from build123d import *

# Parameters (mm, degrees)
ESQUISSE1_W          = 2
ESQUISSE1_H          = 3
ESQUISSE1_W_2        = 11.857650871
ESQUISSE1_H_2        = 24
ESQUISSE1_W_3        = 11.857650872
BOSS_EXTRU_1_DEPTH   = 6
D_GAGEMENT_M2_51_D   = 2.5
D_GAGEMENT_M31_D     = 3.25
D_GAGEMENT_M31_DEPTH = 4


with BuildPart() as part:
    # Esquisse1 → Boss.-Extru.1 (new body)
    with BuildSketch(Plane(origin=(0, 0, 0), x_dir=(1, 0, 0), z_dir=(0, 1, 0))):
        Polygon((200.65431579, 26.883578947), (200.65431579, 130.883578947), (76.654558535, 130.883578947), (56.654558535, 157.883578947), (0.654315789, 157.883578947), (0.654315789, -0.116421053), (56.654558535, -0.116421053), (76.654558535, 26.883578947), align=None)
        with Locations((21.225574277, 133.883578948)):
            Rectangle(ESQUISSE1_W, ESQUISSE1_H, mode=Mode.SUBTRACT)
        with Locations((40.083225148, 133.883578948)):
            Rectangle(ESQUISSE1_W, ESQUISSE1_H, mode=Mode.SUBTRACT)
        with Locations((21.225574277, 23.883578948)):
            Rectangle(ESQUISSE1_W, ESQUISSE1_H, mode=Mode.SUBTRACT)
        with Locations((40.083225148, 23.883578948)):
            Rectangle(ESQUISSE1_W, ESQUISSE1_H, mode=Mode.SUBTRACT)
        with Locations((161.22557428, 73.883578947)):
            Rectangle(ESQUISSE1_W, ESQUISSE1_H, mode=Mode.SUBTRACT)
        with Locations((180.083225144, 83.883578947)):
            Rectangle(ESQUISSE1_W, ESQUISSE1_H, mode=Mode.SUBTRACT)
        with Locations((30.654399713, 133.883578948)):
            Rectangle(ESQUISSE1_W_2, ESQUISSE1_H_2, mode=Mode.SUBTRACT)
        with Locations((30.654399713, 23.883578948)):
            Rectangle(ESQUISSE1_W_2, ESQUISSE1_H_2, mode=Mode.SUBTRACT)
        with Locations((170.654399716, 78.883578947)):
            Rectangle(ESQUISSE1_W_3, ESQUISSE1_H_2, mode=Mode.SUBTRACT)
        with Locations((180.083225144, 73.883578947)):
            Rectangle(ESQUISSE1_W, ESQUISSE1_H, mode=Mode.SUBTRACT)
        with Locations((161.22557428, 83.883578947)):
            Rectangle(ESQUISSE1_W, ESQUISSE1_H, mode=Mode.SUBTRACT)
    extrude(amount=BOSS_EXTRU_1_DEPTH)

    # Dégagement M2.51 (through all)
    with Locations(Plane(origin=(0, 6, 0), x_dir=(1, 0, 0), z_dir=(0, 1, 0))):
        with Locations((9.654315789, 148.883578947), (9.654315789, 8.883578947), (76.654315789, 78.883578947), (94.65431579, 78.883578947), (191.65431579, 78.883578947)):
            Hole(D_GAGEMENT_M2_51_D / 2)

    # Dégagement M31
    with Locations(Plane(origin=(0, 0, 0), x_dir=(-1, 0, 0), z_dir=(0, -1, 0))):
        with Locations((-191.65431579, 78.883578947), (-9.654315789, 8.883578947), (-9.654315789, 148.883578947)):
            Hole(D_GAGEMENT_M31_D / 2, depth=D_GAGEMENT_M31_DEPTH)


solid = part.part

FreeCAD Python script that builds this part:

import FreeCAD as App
import Part
import Sketcher
from FreeCAD import Vector


def add_polygon(sketch, points):
    """Adds a closed chain of lines whose ends are joined by coincident constraints."""
    first, n = sketch.GeometryCount, len(points)
    for a, b in zip(points, points[1:] + points[:1]):
        sketch.addGeometry(Part.LineSegment(App.Vector(*a, 0), App.Vector(*b, 0)), False)
    for i in range(n):
        sketch.addConstraint(Sketcher.Constraint("Coincident", first + i, 2, first + (i + 1) % n, 1))

doc = App.newDocument("Part")
params = doc.addObject("Spreadsheet::Sheet", "Params")
for row, (alias, value) in enumerate([
    ("sketch1_width", "2 mm"),
    ("sketch1_height", "104 mm"),
    ("sketch1_height2", "158 mm"),
    ("sketch1_height3", "3 mm"),
    ("sketch1_height4", "24 mm"),
    ("pad1_length", "6 mm"),
    ("sketch2_diameter", "2.5 mm"),
    ("hole_diameter", "2.5 mm"),
    ("sketch3_diameter", "3.25 mm"),
    ("hole2_diameter", "3.25 mm"),
    ("hole2_depth", "4 mm"),
], start=1):
    params.set(f"A{row}", alias)
    params.set(f"B{row}", "=" + value)
    params.setAlias(f"B{row}", alias)

body = doc.addObject("PartDesign::Body", "Body")

sketch1 = body.newObject("Sketcher::SketchObject", "Sketch")
sketch1.AttachmentSupport = (doc.getObject("XZ_Plane"), [""])
sketch1.MapMode = "FlatFace"
add_polygon(sketch1, [(200.7, -26.9), (200.7, -130.9), (76.7, -130.9), (56.7, -157.9), (0.7, -157.9), (0.7, 0.1), (56.7, 0.1), (76.7, -26.9)])
add_polygon(sketch1, [(22.2, -22.4), (20.2, -22.4), (20.2, -25.4), (22.2, -25.4)])
add_polygon(sketch1, [(36.6, -11.9), (24.7, -11.9), (24.7, -35.9), (36.6, -35.9)])
add_polygon(sketch1, [(41.1, -22.4), (39.1, -22.4), (39.1, -25.4), (41.1, -25.4)])
add_polygon(sketch1, [(162.2, -72.4), (160.2, -72.4), (160.2, -75.4), (162.2, -75.4)])
add_polygon(sketch1, [(176.6, -66.9), (164.7, -66.9), (164.7, -90.9), (176.6, -90.9)])
add_polygon(sketch1, [(181.1, -72.4), (179.1, -72.4), (179.1, -75.4), (181.1, -75.4)])
add_polygon(sketch1, [(22.2, -132.4), (20.2, -132.4), (20.2, -135.4), (22.2, -135.4)])
add_polygon(sketch1, [(36.6, -121.9), (24.7, -121.9), (24.7, -145.9), (36.6, -145.9)])
add_polygon(sketch1, [(41.1, -132.4), (39.1, -132.4), (39.1, -135.4), (41.1, -135.4)])
add_polygon(sketch1, [(162.2, -82.4), (160.2, -82.4), (160.2, -85.4), (162.2, -85.4)])
add_polygon(sketch1, [(181.1, -82.4), (179.1, -82.4), (179.1, -85.4), (181.1, -85.4)])
sketch1.addConstraint(Sketcher.Constraint("Vertical", 0))
sketch1.addConstraint(Sketcher.Constraint("Horizontal", 1))
sketch1.addConstraint(Sketcher.Constraint("Horizontal", 3))
sketch1.addConstraint(Sketcher.Constraint("Vertical", 4))
sketch1.addConstraint(Sketcher.Constraint("Horizontal", 5))
sketch1.addConstraint(Sketcher.Constraint("Horizontal", 7))
sketch1.addConstraint(Sketcher.Constraint("Horizontal", 8))
sketch1.addConstraint(Sketcher.Constraint("Vertical", 9))
sketch1.addConstraint(Sketcher.Constraint("Horizontal", 10))
sketch1.addConstraint(Sketcher.Constraint("Vertical", 11))
sketch1.addConstraint(Sketcher.Constraint("Horizontal", 12))
sketch1.addConstraint(Sketcher.Constraint("Vertical", 13))
sketch1.addConstraint(Sketcher.Constraint("Horizontal", 14))
sketch1.addConstraint(Sketcher.Constraint("Vertical", 15))
sketch1.addConstraint(Sketcher.Constraint("Horizontal", 16))
sketch1.addConstraint(Sketcher.Constraint("Vertical", 17))
sketch1.addConstraint(Sketcher.Constraint("Horizontal", 18))
sketch1.addConstraint(Sketcher.Constraint("Vertical", 19))
sketch1.addConstraint(Sketcher.Constraint("Horizontal", 20))
sketch1.addConstraint(Sketcher.Constraint("Vertical", 21))
sketch1.addConstraint(Sketcher.Constraint("Horizontal", 22))
sketch1.addConstraint(Sketcher.Constraint("Vertical", 23))
sketch1.addConstraint(Sketcher.Constraint("Horizontal", 24))
sketch1.addConstraint(Sketcher.Constraint("Vertical", 25))
sketch1.addConstraint(Sketcher.Constraint("Horizontal", 26))
sketch1.addConstraint(Sketcher.Constraint("Vertical", 27))
sketch1.addConstraint(Sketcher.Constraint("Horizontal", 28))
sketch1.addConstraint(Sketcher.Constraint("Vertical", 29))
sketch1.addConstraint(Sketcher.Constraint("Horizontal", 30))
sketch1.addConstraint(Sketcher.Constraint("Vertical", 31))
sketch1.addConstraint(Sketcher.Constraint("Horizontal", 32))
sketch1.addConstraint(Sketcher.Constraint("Vertical", 33))
sketch1.addConstraint(Sketcher.Constraint("Horizontal", 34))
sketch1.addConstraint(Sketcher.Constraint("Vertical", 35))
sketch1.addConstraint(Sketcher.Constraint("Horizontal", 36))
sketch1.addConstraint(Sketcher.Constraint("Vertical", 37))
sketch1.addConstraint(Sketcher.Constraint("Horizontal", 38))
sketch1.addConstraint(Sketcher.Constraint("Vertical", 39))
sketch1.addConstraint(Sketcher.Constraint("Horizontal", 40))
sketch1.addConstraint(Sketcher.Constraint("Vertical", 41))
sketch1.addConstraint(Sketcher.Constraint("Horizontal", 42))
sketch1.addConstraint(Sketcher.Constraint("Vertical", 43))
sketch1.addConstraint(Sketcher.Constraint("Horizontal", 44))
sketch1.addConstraint(Sketcher.Constraint("Vertical", 45))
sketch1.addConstraint(Sketcher.Constraint("Horizontal", 46))
sketch1.addConstraint(Sketcher.Constraint("Vertical", 47))
sketch1.addConstraint(Sketcher.Constraint("Horizontal", 48))
sketch1.addConstraint(Sketcher.Constraint("Vertical", 49))
sketch1.addConstraint(Sketcher.Constraint("Horizontal", 50))
sketch1.addConstraint(Sketcher.Constraint("Vertical", 51))
sketch1.addConstraint(Sketcher.Constraint("Horizontal", 11, 2, 16, 2))
sketch1.addConstraint(Sketcher.Constraint("Horizontal", 10, 2, 17, 2))
sketch1.addConstraint(Sketcher.Constraint("Horizontal", 23, 2, 28, 2))
sketch1.addConstraint(Sketcher.Constraint("Horizontal", 22, 2, 29, 2))
sketch1.addConstraint(Sketcher.Constraint("Horizontal", 35, 2, 40, 2))
sketch1.addConstraint(Sketcher.Constraint("Horizontal", 34, 2, 41, 2))
sketch1.addConstraint(Sketcher.Constraint("Horizontal", 47, 2, 48, 2))
sketch1.addConstraint(Sketcher.Constraint("Horizontal", 46, 2, 49, 2))
sketch1.addConstraint(Sketcher.Constraint("Vertical", 2, 2, 5, 2))
sketch1.addConstraint(Sketcher.Constraint("Vertical", 1, 2, 6, 2))
sketch1.addConstraint(Sketcher.Constraint("Vertical", 9, 2, 32, 2))
sketch1.addConstraint(Sketcher.Constraint("Vertical", 11, 2, 34, 2))
sketch1.addConstraint(Sketcher.Constraint("Vertical", 13, 2, 36, 2))
sketch1.addConstraint(Sketcher.Constraint("Vertical", 15, 2, 38, 2))
sketch1.addConstraint(Sketcher.Constraint("Vertical", 17, 2, 40, 2))
sketch1.addConstraint(Sketcher.Constraint("Vertical", 19, 2, 42, 2))
sketch1.addConstraint(Sketcher.Constraint("Vertical", 21, 2, 44, 2))
sketch1.addConstraint(Sketcher.Constraint("Vertical", 23, 2, 46, 2))
sketch1.addConstraint(Sketcher.Constraint("Vertical", 29, 2, 48, 2))
sketch1.addConstraint(Sketcher.Constraint("Vertical", 31, 2, 50, 2))
sketch1.addConstraint(Sketcher.Constraint("Equal", 10, 16))
sketch1.addConstraint(Sketcher.Constraint("Equal", 18, 20))
sketch1.addConstraint(Sketcher.Constraint("Equal", 14, 24))
sketch1.addConstraint(Sketcher.Constraint("Equal", 22, 28))
sketch1.addConstraint(Sketcher.Constraint("Equal", 19, 21))
sketch1.addConstraint(Sketcher.Constraint("Equal", 15, 25))
sketch1.addConstraint(Sketcher.Constraint("Equal", 31, 33))
sketch1.addConstraint(Sketcher.Constraint("Equal", 27, 37))
sketch1.addConstraint(Sketcher.Constraint("Equal", 43, 45))
sketch1.addConstraint(Sketcher.Constraint("Equal", 2, 6))
sketch1.addConstraint(Sketcher.Constraint("DistanceX", 8, 2, 8, 1, 2.0))
sketch1.addConstraint(Sketcher.Constraint("DistanceY", 0, 2, 0, 1, 104.0))
sketch1.addConstraint(Sketcher.Constraint("DistanceY", 4, 1, 4, 2, 158.0))
sketch1.addConstraint(Sketcher.Constraint("DistanceY", 9, 2, 9, 1, 3.0))
sketch1.addConstraint(Sketcher.Constraint("DistanceY", 13, 2, 13, 1, 24.0))
sketch1.addConstraint(Sketcher.Constraint("DistanceX", 2, 2, 1, 2, 20.0))
sketch1.addConstraint(Sketcher.Constraint("DistanceX", 3, 2, 0, 2, 200.0))
sketch1.addConstraint(Sketcher.Constraint("DistanceY", 12, 2, 4, 2, 12.0))
sketch1.addConstraint(Sketcher.Constraint("DistanceY", 24, 2, 7, 2, 40.0))
sketch1.addConstraint(Sketcher.Constraint("DistanceY", 3, 2, 36, 2, 36.0))
sketch1.addConstraint(Sketcher.Constraint("DistanceY", 44, 2, 21, 2, 7.0))
sketch1.addConstraint(Sketcher.Constraint("DistanceY", 8, 2, 4, 2, 22.5))
sketch1.addConstraint(Sketcher.Constraint("DistanceX", 11, 2, 12, 2, 2.5))
sketch1.addConstraint(Sketcher.Constraint("DistanceX", 15, 2, 16, 2, 2.5))
sketch1.addConstraint(Sketcher.Constraint("DistanceY", 20, 2, 7, 2, 45.5))
sketch1.addConstraint(Sketcher.Constraint("DistanceX", 23, 2, 24, 2, 2.5))
sketch1.addConstraint(Sketcher.Constraint("DistanceX", 27, 2, 28, 2, 2.5))
sketch1.addConstraint(Sketcher.Constraint("DistanceY", 3, 2, 32, 2, 25.5))
sketch1.addConstraint(Sketcher.Constraint("DistanceX", 12, 2, 12, 1, 11.857651))
sketch1.addConstraint(Sketcher.Constraint("DistanceX", 1, 2, 1, 1, 123.999757))
sketch1.addConstraint(Sketcher.Constraint("DistanceY", 0, 2, -1, 1, 130.883579))
sketch1.addConstraint(Sketcher.Constraint("DistanceX", -1, 1, 1, 2, 76.654559))
sketch1.addConstraint(Sketcher.Constraint("DistanceX", 4, 2, 8, 2, 19.571258))
sketch1.addConstraint(Sketcher.Constraint("DistanceX", 20, 2, 7, 2, 40.428742))
sketch1.setExpression("Constraints[132]", "Params.sketch1_width")
sketch1.setExpression("Constraints[133]", "Params.sketch1_height")
sketch1.setExpression("Constraints[134]", "Params.sketch1_height2")
sketch1.setExpression("Constraints[135]", "Params.sketch1_height3")
sketch1.setExpression("Constraints[136]", "Params.sketch1_height4")
pad1 = body.newObject("PartDesign::Pad", "Pad")
pad1.Profile = sketch1
pad1.setExpression("Length", "Params.pad1_length")
pad1.Reversed = True

sketch2 = body.newObject("Sketcher::SketchObject", "Sketch001")
sketch2.AttachmentSupport = (doc.getObject("XZ_Plane"), [""])
sketch2.MapMode = "FlatFace"
sketch2.AttachmentOffset = App.Placement(Vector(0, 0, -6), App.Rotation())
sketch2.addGeometry(Part.Circle(Vector(9.7, -148.9, 0), Vector(0, 0, 1), 1.2), False)
sketch2.addGeometry(Part.Circle(Vector(9.7, -8.9, 0), Vector(0, 0, 1), 1.2), False)
sketch2.addGeometry(Part.Circle(Vector(76.7, -78.9, 0), Vector(0, 0, 1), 1.2), False)
sketch2.addGeometry(Part.Circle(Vector(94.7, -78.9, 0), Vector(0, 0, 1), 1.2), False)
sketch2.addGeometry(Part.Circle(Vector(191.7, -78.9, 0), Vector(0, 0, 1), 1.2), False)
sketch2.addConstraint(Sketcher.Constraint("Equal", 0, 1))
sketch2.addConstraint(Sketcher.Constraint("Equal", 1, 2))
sketch2.addConstraint(Sketcher.Constraint("Equal", 2, 3))
sketch2.addConstraint(Sketcher.Constraint("Equal", 3, 4))
sketch2.addConstraint(Sketcher.Constraint("Horizontal", 2, 3, 3, 3))
sketch2.addConstraint(Sketcher.Constraint("Horizontal", 3, 3, 4, 3))
sketch2.addConstraint(Sketcher.Constraint("Vertical", 0, 3, 1, 3))
sketch2.addConstraint(Sketcher.Constraint("Diameter", 0, 2.5))
sketch2.addConstraint(Sketcher.Constraint("DistanceY", 0, 3, 1, 3, 140.0))
sketch2.addConstraint(Sketcher.Constraint("DistanceX", 0, 3, 2, 3, 67.0))
sketch2.addConstraint(Sketcher.Constraint("DistanceY", 0, 3, 2, 3, 70.0))
sketch2.addConstraint(Sketcher.Constraint("DistanceX", 2, 3, 3, 3, 18.0))
sketch2.addConstraint(Sketcher.Constraint("DistanceX", 3, 3, 4, 3, 97.0))
sketch2.addConstraint(Sketcher.Constraint("DistanceY", 0, 3, -1, 1, 148.883579))
sketch2.addConstraint(Sketcher.Constraint("DistanceX", -1, 1, 0, 3, 9.654316))
sketch2.setExpression("Constraints[7]", "Params.sketch2_diameter")
doc.recompute()
hole = body.newObject("PartDesign::Hole", "Hole")
hole.Profile = sketch2
hole.ThreadType = "None"
hole.setExpression("Diameter", "Params.hole_diameter")
hole.DepthType = "ThroughAll"
hole.Reversed = True

sketch3 = body.newObject("Sketcher::SketchObject", "Sketch002")
sketch3.AttachmentSupport = (doc.getObject("XZ_Plane"), [""])
sketch3.MapMode = "FlatFace"
sketch3.addGeometry(Part.Circle(Vector(191.7, -78.9, 0), Vector(0, 0, 1), 1.6), False)
sketch3.addGeometry(Part.Circle(Vector(9.7, -8.9, 0), Vector(0, 0, 1), 1.6), False)
sketch3.addGeometry(Part.Circle(Vector(9.7, -148.9, 0), Vector(0, 0, 1), 1.6), False)
sketch3.addConstraint(Sketcher.Constraint("Equal", 0, 1))
sketch3.addConstraint(Sketcher.Constraint("Equal", 1, 2))
sketch3.addConstraint(Sketcher.Constraint("Vertical", 1, 3, 2, 3))
sketch3.addConstraint(Sketcher.Constraint("Diameter", 0, 3.25))
sketch3.addConstraint(Sketcher.Constraint("DistanceX", 1, 3, 0, 3, 182.0))
sketch3.addConstraint(Sketcher.Constraint("DistanceY", 0, 3, 1, 3, 70.0))
sketch3.addConstraint(Sketcher.Constraint("DistanceY", 2, 3, 1, 3, 140.0))
sketch3.addConstraint(Sketcher.Constraint("DistanceY", 0, 3, -1, 1, 78.883579))
sketch3.addConstraint(Sketcher.Constraint("DistanceX", -1, 1, 0, 3, 191.654316))
sketch3.setExpression("Constraints[3]", "Params.sketch3_diameter")
doc.recompute()
hole2 = body.newObject("PartDesign::Hole", "Hole001")
hole2.Profile = sketch3
hole2.ThreadType = "None"
hole2.setExpression("Diameter", "Params.hole2_diameter")
hole2.DepthType = "Dimension"
hole2.setExpression("Depth", "Params.hole2_depth")
hole2.DrillPoint = "Flat"

doc.recompute()
